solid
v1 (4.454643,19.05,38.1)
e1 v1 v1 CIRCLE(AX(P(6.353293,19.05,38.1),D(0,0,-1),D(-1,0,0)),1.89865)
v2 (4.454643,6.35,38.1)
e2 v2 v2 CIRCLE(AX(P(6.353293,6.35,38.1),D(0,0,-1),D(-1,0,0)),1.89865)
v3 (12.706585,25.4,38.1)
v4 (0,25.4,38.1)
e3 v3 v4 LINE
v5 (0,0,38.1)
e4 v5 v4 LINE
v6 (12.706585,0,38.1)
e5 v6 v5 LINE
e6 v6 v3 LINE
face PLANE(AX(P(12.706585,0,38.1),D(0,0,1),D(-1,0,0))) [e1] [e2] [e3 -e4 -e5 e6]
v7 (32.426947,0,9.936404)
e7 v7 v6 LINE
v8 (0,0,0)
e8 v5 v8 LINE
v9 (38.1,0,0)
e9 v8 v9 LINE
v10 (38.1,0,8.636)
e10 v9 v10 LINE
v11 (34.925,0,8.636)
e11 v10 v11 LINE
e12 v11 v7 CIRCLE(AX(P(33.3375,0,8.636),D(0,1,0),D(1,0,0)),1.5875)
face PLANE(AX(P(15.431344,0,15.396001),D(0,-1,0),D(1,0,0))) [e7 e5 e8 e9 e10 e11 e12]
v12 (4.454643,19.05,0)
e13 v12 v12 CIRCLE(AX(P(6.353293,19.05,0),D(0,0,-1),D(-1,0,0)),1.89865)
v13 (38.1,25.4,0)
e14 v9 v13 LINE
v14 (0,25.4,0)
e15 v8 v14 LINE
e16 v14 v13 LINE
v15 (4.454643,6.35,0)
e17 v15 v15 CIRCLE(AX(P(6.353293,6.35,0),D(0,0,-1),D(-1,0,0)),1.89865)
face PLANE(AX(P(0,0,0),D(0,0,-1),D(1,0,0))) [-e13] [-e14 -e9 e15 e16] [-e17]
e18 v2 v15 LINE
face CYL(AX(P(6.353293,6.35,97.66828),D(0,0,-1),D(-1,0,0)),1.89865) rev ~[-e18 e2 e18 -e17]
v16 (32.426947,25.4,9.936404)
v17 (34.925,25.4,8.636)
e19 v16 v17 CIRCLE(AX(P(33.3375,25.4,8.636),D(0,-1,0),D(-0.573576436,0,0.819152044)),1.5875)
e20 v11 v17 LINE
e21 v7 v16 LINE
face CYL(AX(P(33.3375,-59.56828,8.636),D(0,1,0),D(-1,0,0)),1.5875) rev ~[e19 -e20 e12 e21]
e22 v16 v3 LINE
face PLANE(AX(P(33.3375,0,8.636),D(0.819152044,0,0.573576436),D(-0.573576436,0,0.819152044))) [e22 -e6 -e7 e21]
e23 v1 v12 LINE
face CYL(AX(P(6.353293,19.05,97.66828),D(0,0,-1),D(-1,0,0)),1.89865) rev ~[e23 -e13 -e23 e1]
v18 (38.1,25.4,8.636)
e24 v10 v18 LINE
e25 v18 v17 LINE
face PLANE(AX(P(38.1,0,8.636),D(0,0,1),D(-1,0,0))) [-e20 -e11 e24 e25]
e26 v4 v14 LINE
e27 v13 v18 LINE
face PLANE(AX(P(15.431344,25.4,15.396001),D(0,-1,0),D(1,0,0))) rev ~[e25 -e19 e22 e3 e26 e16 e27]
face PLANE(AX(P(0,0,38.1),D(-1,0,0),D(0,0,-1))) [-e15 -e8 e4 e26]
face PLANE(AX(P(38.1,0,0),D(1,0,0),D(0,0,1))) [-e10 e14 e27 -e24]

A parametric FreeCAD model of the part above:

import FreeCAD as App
import Part
import Sketcher

V = App.Vector
Q = App.Units.Quantity


def add_polygon(sketch, points):
    """Adds a closed chain of lines whose ends are joined by coincident constraints."""
    first, n = sketch.GeometryCount, len(points)
    for a, b in zip(points, points[1:] + points[:1]):
        sketch.addGeometry(Part.LineSegment(App.Vector(*a, 0), App.Vector(*b, 0)), False)
    for i in range(n):
        sketch.addConstraint(Sketcher.Constraint("Coincident", first + i, 2, first + (i + 1) % n, 1))

doc = App.newDocument("Part")
body = doc.addObject("PartDesign::Body", "Body")

# Sketch on XZ plane
sketch1 = doc.addObject("Sketcher::SketchObject", "Sketch")
body.addObject(sketch1)
sketch1.AttachmentSupport = (doc.XZ_Plane, [""])
sketch1.MapMode = "FlatFace"
add_polygon(sketch1, [(0, 38.1), (0, 0), (38.1, 0), (38.1, 8.6), (33.3, 8.6), (12.7, 38.1)])  # lines 0-5
sketch1.addConstraint(Sketcher.Constraint("Vertical", 0))
sketch1.addConstraint(Sketcher.Constraint("Horizontal", 1))
sketch1.addConstraint(Sketcher.Constraint("Vertical", 2))
sketch1.addConstraint(Sketcher.Constraint("Horizontal", 3))
sketch1.addConstraint(Sketcher.Constraint("Horizontal", 5))
sketch1.addConstraint(Sketcher.Constraint("Coincident", 0, 2, -1, 1))
sketch1.addConstraint(Sketcher.Constraint("Equal", 1, 0))
sketch1.addConstraint(Sketcher.Constraint("DistanceX", 1, 1, 1, 2, Q("1.5 in")))
sketch1.addConstraint(Sketcher.Constraint("Angle", 4, Q("125 deg")))
sketch1.addConstraint(Sketcher.Constraint("DistanceY", 2, 1, 2, 2, Q("0.34 in")))
sketch1.addConstraint(Sketcher.Constraint("DistanceX", 3, 2, 3, 1, Q("0.1875 in")))
pad1 = doc.addObject("PartDesign::Pad", "Pad")
body.addObject(pad1)
pad1.Profile = sketch1
pad1.Length = Q("1 in")
pad1.Reversed = True

# Sketch on XY plane
sketch2 = doc.addObject("Sketcher::SketchObject", "Sketch001")
body.addObject(sketch2)
sketch2.AttachmentSupport = (doc.XY_Plane, [""])
sketch2.MapMode = "FlatFace"
sketch2.AttachmentOffset = App.Placement(V(0, 0, 1.5 * 25.4), App.Rotation())
sketch2.addGeometry(Part.Circle(V(6.4, 19.1, 0), V(0, 0, 1), 1.9), False)
sketch2.addGeometry(Part.Circle(V(6.4, 6.3, 0), V(0, 0, 1), 1.9), False)
sketch2.addConstraint(Sketcher.Constraint("Equal", 0, 1))
sketch2.addConstraint(Sketcher.Constraint("Vertical", 0, 3, 1, 3))
sketch2.addConstraint(Sketcher.Constraint("Diameter", 0, Q("0.1495 in")))
sketch2.addConstraint(Sketcher.Constraint("DistanceY", 1, 3, 0, 3, Q("0.5 in")))
sketch2.addConstraint(Sketcher.Constraint("DistanceY", -1, 1, 0, 3, Q("0.75 in")))
sketch2.addConstraint(Sketcher.Constraint("DistanceX", -1, 1, 0, 3, Q("6.353293 mm")))
doc.recompute()
hole = doc.addObject("PartDesign::Hole", "Hole")
body.addObject(hole)
hole.Profile = sketch2
hole.ThreadType = "None"
hole.Diameter = Q("0.1495 in")
hole.DepthType = "ThroughAll"

# Sketch on XZ plane
sketch3 = doc.addObject("Sketcher::SketchObject", "Sketch002")
body.addObject(sketch3)
sketch3.AttachmentSupport = (doc.XZ_Plane, [""])
sketch3.MapMode = "FlatFace"
sketch3.addGeometry(Part.Circle(V(33.3, 8.6, 0), V(0, 0, 1), 1.6), False)
sketch3.addConstraint(Sketcher.Constraint("Diameter", 0, Q("0.125 in")))
sketch3.addConstraint(Sketcher.Constraint("DistanceY", -1, 1, 0, 3, Q("0.34 in")))
sketch3.addConstraint(Sketcher.Constraint("DistanceX", -1, 1, 0, 3, Q("1.3125 in")))
doc.recompute()
hole2 = doc.addObject("PartDesign::Hole", "Hole001")
body.addObject(hole2)
hole2.Profile = sketch3
hole2.ThreadType = "None"
hole2.Diameter = Q("0.125 in")
hole2.DepthType = "ThroughAll"

doc.recompute()
